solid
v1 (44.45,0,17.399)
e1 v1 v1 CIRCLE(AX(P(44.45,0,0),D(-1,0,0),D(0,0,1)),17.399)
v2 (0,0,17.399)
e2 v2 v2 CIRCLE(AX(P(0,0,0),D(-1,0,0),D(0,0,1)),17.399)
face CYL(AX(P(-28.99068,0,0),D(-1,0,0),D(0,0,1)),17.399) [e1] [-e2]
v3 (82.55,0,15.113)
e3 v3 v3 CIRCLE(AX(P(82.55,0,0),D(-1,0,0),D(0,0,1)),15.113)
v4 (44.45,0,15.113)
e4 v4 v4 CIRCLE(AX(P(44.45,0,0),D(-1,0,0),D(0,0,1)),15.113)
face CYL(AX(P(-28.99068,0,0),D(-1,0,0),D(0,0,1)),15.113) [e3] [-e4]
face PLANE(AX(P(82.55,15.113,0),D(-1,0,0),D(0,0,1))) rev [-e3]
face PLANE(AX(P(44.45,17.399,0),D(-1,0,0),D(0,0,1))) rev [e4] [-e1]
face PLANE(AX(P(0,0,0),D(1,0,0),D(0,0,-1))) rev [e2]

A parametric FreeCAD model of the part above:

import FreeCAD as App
import Part
import Sketcher
from FreeCAD import Vector
Q = App.Units.Quantity

doc = App.newDocument("Part")
params = doc.addObject("Spreadsheet::Sheet", "Params")
for row, (alias, value) in enumerate([
    ("sketch1_width", "1.5 in"),
    ("sketch1_width2", "1.75 in"),
    ("sketch1_height", "0.09 in"),
    ("sketch1_height2", "0.685 in"),
    ("revolution_angle", "360 deg"),
], start=1):
    params.set(f"A{row}", alias)
    params.set(f"B{row}", "=" + value)
    params.setAlias(f"B{row}", alias)

body = doc.addObject("PartDesign::Body", "Body")

sketch1 = body.newObject("Sketcher::SketchObject", "Sketch")
sketch1.AttachmentSupport = (doc.getObject("XY_Plane"), [""])
sketch1.MapMode = "FlatFace"
sketch1.addGeometry([
    Part.LineSegment(Vector(44.5, 15.1, 0), Vector(44.5, 17.4, 0)),
    Part.LineSegment(Vector(44.5, 17.4, 0), Vector(0, 17.4, 0)),
    Part.LineSegment(Vector(0, 17.4, 0), Vector(0, 0, 0)),
    Part.LineSegment(Vector(0, 0, 0), Vector(82.5, 0, 0)),
    Part.LineSegment(Vector(82.5, 0, 0), Vector(82.5, 15.1, 0)),
    Part.LineSegment(Vector(82.5, 15.1, 0), Vector(44.5, 15.1, 0)),
], False)
sketch1.addConstraint([
    Sketcher.Constraint("Coincident", 0, 2, 1, 1),
    Sketcher.Constraint("Coincident", 1, 2, 2, 1),
    Sketcher.Constraint("Coincident", 2, 2, 3, 1),
    Sketcher.Constraint("Coincident", 3, 2, 4, 1),
    Sketcher.Constraint("Coincident", 4, 2, 5, 1),
    Sketcher.Constraint("Coincident", 5, 2, 0, 1),
    Sketcher.Constraint("Vertical", 0),
    Sketcher.Constraint("Horizontal", 1),
    Sketcher.Constraint("Vertical", 2),
    Sketcher.Constraint("Horizontal", 3),
    Sketcher.Constraint("Vertical", 4),
    Sketcher.Constraint("Horizontal", 5),
    Sketcher.Constraint("Coincident", 2, 2, -1, 1),
    Sketcher.Constraint("DistanceX", 5, 2, 5, 1, Q("1.5 in")),
    Sketcher.Constraint("DistanceX", 1, 2, 1, 1, Q("1.75 in")),
    Sketcher.Constraint("DistanceY", 0, 1, 0, 2, Q("0.09 in")),
    Sketcher.Constraint("DistanceY", 2, 2, 2, 1, Q("0.685 in")),
])
sketch1.setExpression("Constraints[13]", "Params.sketch1_width")
sketch1.setExpression("Constraints[14]", "Params.sketch1_width2")
sketch1.setExpression("Constraints[15]", "Params.sketch1_height")
sketch1.setExpression("Constraints[16]", "Params.sketch1_height2")
revolution = body.newObject("PartDesign::Revolution", "Revolution")
revolution.Profile = sketch1
revolution.ReferenceAxis = (sketch1, ["H_Axis"])
revolution.setExpression("Angle", "Params.revolution_angle")

doc.recompute()
